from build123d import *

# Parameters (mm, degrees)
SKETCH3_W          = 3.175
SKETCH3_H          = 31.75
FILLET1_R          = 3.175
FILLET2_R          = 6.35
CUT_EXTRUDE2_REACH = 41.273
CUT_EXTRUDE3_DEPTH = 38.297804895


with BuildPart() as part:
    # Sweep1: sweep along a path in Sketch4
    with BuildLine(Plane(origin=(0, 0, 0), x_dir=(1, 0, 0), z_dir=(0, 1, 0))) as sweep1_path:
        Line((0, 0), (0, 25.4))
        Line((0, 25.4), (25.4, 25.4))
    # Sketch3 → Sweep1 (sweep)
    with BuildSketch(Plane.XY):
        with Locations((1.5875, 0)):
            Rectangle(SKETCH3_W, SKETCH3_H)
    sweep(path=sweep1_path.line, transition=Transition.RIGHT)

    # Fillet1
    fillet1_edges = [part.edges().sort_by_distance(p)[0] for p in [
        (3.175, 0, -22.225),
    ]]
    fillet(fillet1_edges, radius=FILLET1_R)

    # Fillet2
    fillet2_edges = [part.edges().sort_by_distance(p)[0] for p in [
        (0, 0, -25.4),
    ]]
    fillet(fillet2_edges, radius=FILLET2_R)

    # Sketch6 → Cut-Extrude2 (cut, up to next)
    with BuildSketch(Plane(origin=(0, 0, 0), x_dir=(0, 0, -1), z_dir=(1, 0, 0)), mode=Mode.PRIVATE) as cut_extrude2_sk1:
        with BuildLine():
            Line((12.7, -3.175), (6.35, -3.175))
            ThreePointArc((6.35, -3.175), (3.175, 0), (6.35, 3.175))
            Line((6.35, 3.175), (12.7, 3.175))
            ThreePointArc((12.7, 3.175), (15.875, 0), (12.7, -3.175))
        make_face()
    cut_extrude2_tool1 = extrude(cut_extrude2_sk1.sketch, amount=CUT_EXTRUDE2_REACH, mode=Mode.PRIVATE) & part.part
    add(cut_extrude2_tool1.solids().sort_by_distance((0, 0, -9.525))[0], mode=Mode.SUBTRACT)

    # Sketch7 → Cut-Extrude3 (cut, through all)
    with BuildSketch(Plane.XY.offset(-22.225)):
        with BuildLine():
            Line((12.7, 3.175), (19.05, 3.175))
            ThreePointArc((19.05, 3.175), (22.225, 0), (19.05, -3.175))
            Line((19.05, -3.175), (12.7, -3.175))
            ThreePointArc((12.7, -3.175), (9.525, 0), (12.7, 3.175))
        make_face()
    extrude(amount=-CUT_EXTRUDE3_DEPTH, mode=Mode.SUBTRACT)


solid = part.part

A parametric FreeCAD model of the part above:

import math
import FreeCAD as App
import Part
import Sketcher
from FreeCAD import Vector
Q = App.Units.Quantity


def edges_at(feature, points):
    """Names of the edges that pass closest to the given points."""
    edges = feature.Shape.Edges
    near = lambda p: min(range(len(edges)), key=lambda i: edges[i].distToShape(Part.Vertex(*p))[0])
    return sorted({f"Edge{near(p) + 1}" for p in points})

doc = App.newDocument("Part")
body = doc.addObject("PartDesign::Body", "Body")

sketch1 = doc.addObject("Sketcher::SketchObject", "Sketch")
body.addObject(sketch1)
sketch1.AttachmentSupport = (doc.XY_Plane, [""])
sketch1.MapMode = "FlatFace"
sketch1.addGeometry([
    Part.LineSegment(Vector(0, 15.9, 0), Vector(0, -15.9, 0)),
    Part.LineSegment(Vector(0, -15.9, 0), Vector(3.2, -15.9, 0)),
    Part.LineSegment(Vector(3.2, -15.9, 0), Vector(3.2, 15.9, 0)),
    Part.LineSegment(Vector(3.2, 15.9, 0), Vector(0, 15.9, 0)),
], False)
sketch1.addConstraint([
    Sketcher.Constraint("Coincident", 0, 2, 1, 1),
    Sketcher.Constraint("Coincident", 1, 2, 2, 1),
    Sketcher.Constraint("Coincident", 2, 2, 3, 1),
    Sketcher.Constraint("Coincident", 3, 2, 0, 1),
    Sketcher.Constraint("Vertical", 0),
    Sketcher.Constraint("Horizontal", 1),
    Sketcher.Constraint("Vertical", 2),
    Sketcher.Constraint("Horizontal", 3),
    Sketcher.Constraint("Symmetric", 0, 2, 3, 2, -1, 1),
    Sketcher.Constraint("DistanceY", 0, 2, 0, 1, Q("1.25 in")),
    Sketcher.Constraint("DistanceX", 1, 1, 1, 2, Q("0.125 in")),
])

sketch2 = doc.addObject("Sketcher::SketchObject", "Sketch001")
body.addObject(sketch2)
sketch2.AttachmentSupport = (doc.XZ_Plane, [""])
sketch2.MapMode = "FlatFace"
sketch2.addGeometry([
    Part.LineSegment(Vector(0, 0, 0), Vector(0, -25, 0)),
    Part.LineSegment(Vector(0, -25, 0), Vector(25, -25, 0)),
], False)
sketch2.addConstraint([
    Sketcher.Constraint("Coincident", 0, 2, 1, 1),
    Sketcher.Constraint("Vertical", 0),
    Sketcher.Constraint("Horizontal", 1),
    Sketcher.Constraint("Coincident", 0, 1, -1, 1),
    Sketcher.Constraint("Equal", 1, 0),
    Sketcher.Constraint("DistanceX", 1, 1, 1, 2, Q("1 in")),
])
doc.recompute()

additivepipe = doc.addObject("PartDesign::AdditivePipe", "AdditivePipe")
body.addObject(additivepipe)
additivepipe.Profile = sketch1
additivepipe.Spine = (sketch2, ["Edge1", "Edge2"])
additivepipe.Transition = "Right corner"
doc.recompute()

fillet = doc.addObject("PartDesign::Fillet", "Fillet")
body.addObject(fillet)
fillet.Base = (additivepipe, edges_at(additivepipe, [(3.175, 0, -22.225)]))
fillet.Radius = Q("0.125 in")
doc.recompute()

fillet2 = doc.addObject("PartDesign::Fillet", "Fillet001")
body.addObject(fillet2)
fillet2.Base = (fillet, edges_at(fillet, [(0, 0, -25.4)]))
fillet2.Radius = Q("0.25 in")

sketch3 = doc.addObject("Sketcher::SketchObject", "Sketch002")
body.addObject(sketch3)
sketch3.AttachmentSupport = (doc.YZ_Plane, [""])
sketch3.MapMode = "FlatFace"
sketch3.addGeometry([
    Part.LineSegment(Vector(-3.2, -6.3, 0), Vector(-3.2, -12.7, 0)),
    Part.ArcOfCircle(Part.Circle(Vector(0, -12.7, 0), Vector(0, 0, 1), 3.2), math.radians(180), math.radians(360)),
    Part.LineSegment(Vector(3.2, -12.7, 0), Vector(3.2, -6.3, 0)),
    Part.ArcOfCircle(Part.Circle(Vector(0, -6.3, 0), Vector(0, 0, 1), 3.2), math.radians(0), math.radians(180)),
], False)
sketch3.addConstraint([
    Sketcher.Constraint("Tangent", 0, 2, 1, 1),
    Sketcher.Constraint("Tangent", 1, 2, 2, 1),
    Sketcher.Constraint("Tangent", 2, 2, 3, 1),
    Sketcher.Constraint("Tangent", 3, 2, 0, 1),
    Sketcher.Constraint("Vertical", 0),
    Sketcher.Constraint("Vertical", 2),
    Sketcher.Constraint("PointOnObject", 1, 3, -2),
    Sketcher.Constraint("Radius", 1, Q("0.125 in")),
    Sketcher.Constraint("DistanceY", 0, 2, 0, 1, Q("0.25 in")),
    Sketcher.Constraint("DistanceY", 1, 3, -1, 1, Q("0.5 in")),
])
pocket1 = doc.addObject("PartDesign::Pocket", "Pocket")
body.addObject(pocket1)
pocket1.Profile = sketch3
pocket1.Type = "UpToFirst"
pocket1.Reversed = True

sketch4 = doc.addObject("Sketcher::SketchObject", "Sketch003")
body.addObject(sketch4)
sketch4.AttachmentSupport = (doc.XY_Plane, [""])
sketch4.MapMode = "FlatFace"
sketch4.AttachmentOffset = App.Placement(Vector(0, 0, -0.875 * 25.4), App.Rotation())
sketch4.addGeometry([
    Part.LineSegment(Vector(19.1, 3.2, 0), Vector(12.7, 3.2, 0)),
    Part.ArcOfCircle(Part.Circle(Vector(12.7, 0, 0), Vector(0, 0, 1), 3.2), math.radians(90), math.radians(270)),
    Part.LineSegment(Vector(12.7, -3.2, 0), Vector(19.1, -3.2, 0)),
    Part.ArcOfCircle(Part.Circle(Vector(19.1, 0, 0), Vector(0, 0, 1), 3.2), math.radians(-90), math.radians(90)),
], False)
sketch4.addConstraint([
    Sketcher.Constraint("Tangent", 0, 2, 1, 1),
    Sketcher.Constraint("Tangent", 1, 2, 2, 1),
    Sketcher.Constraint("Tangent", 2, 2, 3, 1),
    Sketcher.Constraint("Tangent", 3, 2, 0, 1),
    Sketcher.Constraint("Horizontal", 0),
    Sketcher.Constraint("Horizontal", 2),
    Sketcher.Constraint("PointOnObject", 1, 3, -1),
    Sketcher.Constraint("Radius", 1, Q("0.125 in")),
    Sketcher.Constraint("DistanceX", 0, 2, 0, 1, Q("0.25 in")),
    Sketcher.Constraint("DistanceX", -1, 1, 1, 3, Q("0.5 in")),
])
pocket2 = doc.addObject("PartDesign::Pocket", "Pocket001")
body.addObject(pocket2)
pocket2.Profile = sketch4
pocket2.Type = "ThroughAll"

doc.recompute()
